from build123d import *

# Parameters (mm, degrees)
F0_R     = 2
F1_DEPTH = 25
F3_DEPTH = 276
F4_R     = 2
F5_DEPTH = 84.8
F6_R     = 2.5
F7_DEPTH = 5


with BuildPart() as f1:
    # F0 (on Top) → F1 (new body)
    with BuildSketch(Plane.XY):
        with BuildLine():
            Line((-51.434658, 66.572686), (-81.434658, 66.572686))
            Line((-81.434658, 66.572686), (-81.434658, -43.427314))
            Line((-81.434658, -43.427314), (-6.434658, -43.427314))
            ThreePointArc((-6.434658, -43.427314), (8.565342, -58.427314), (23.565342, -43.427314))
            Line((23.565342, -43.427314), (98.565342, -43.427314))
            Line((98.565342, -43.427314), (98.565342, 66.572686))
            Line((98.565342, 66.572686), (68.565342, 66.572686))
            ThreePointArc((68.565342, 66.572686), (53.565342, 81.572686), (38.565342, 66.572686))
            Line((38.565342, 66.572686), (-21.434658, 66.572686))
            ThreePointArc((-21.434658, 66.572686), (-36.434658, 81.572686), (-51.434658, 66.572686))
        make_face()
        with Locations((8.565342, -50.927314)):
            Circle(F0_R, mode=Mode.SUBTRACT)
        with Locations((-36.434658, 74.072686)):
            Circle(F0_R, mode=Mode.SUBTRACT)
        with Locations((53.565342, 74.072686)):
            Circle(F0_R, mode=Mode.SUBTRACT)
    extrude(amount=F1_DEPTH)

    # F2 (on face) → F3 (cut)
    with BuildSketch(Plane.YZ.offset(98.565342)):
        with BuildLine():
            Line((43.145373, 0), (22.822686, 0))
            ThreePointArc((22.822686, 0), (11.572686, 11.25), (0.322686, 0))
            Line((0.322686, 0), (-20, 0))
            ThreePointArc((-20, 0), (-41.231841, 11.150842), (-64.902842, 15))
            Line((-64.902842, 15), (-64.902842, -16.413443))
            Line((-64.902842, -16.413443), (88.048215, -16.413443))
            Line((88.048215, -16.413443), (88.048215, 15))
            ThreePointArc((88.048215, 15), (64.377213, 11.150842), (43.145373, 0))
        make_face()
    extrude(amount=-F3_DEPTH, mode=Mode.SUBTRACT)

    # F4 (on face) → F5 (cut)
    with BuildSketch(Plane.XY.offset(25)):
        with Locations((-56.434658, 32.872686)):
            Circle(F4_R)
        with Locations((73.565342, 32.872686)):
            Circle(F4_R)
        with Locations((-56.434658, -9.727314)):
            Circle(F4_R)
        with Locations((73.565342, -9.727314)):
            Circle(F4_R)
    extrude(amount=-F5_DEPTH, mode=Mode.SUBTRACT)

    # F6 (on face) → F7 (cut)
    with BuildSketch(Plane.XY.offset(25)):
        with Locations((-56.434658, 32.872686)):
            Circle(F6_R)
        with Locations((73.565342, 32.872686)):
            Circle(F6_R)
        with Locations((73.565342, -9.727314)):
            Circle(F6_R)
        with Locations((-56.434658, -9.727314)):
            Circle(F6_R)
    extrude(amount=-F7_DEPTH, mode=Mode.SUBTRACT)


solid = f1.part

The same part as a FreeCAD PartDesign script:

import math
import FreeCAD as App
import Part
import Sketcher
from FreeCAD import Vector
Q = App.Units.Quantity

doc = App.newDocument("Part")
params = doc.addObject("Spreadsheet::Sheet", "Params")
for row, (alias, value) in enumerate([
    ("sketch1_diameter", "4 mm"),
    ("sketch1_radius", "15 mm"),
    ("sketch1_width", "30 mm"),
    ("sketch1_width2", "75 mm"),
    ("sketch1_height", "110 mm"),
    ("pad1_length", "25 mm"),
    ("sketch2_radius", "11.25 mm"),
    ("pocket1_length", "276 mm"),
    ("sketch3_diameter", "4 mm"),
    ("pocket2_length", "84.8 mm"),
    ("sketch4_diameter", "5 mm"),
    ("pocket3_length", "5 mm"),
], start=1):
    params.set(f"A{row}", alias)
    params.set(f"B{row}", "=" + value)
    params.setAlias(f"B{row}", alias)

body = doc.addObject("PartDesign::Body", "Body")

# Sketch on XY plane
sketch1 = doc.addObject("Sketcher::SketchObject", "Sketch")
body.addObject(sketch1)
sketch1.AttachmentSupport = (doc.XY_Plane, [""])
sketch1.MapMode = "FlatFace"
sketch1.addGeometry([
    Part.LineSegment(Vector(-51.4, 66.6, 0), Vector(-81.4, 66.6, 0)),  # 0
    Part.LineSegment(Vector(-81.4, 66.6, 0), Vector(-81.4, -43.4, 0)),  # 1
    Part.LineSegment(Vector(-81.4, -43.4, 0), Vector(-6.4, -43.4, 0)),  # 2
    Part.ArcOfCircle(Part.Circle(Vector(8.6, -43.4, 0), Vector(0, 0, 1), 15), math.radians(180), math.radians(360)),  # 3
    Part.LineSegment(Vector(23.6, -43.4, 0), Vector(98.6, -43.4, 0)),  # 4
    Part.LineSegment(Vector(98.6, -43.4, 0), Vector(98.6, 66.6, 0)),  # 5
    Part.LineSegment(Vector(98.6, 66.6, 0), Vector(68.6, 66.6, 0)),  # 6
    Part.ArcOfCircle(Part.Circle(Vector(53.6, 66.6, 0), Vector(0, 0, 1), 15), math.radians(0), math.radians(180)),  # 7
    Part.LineSegment(Vector(38.6, 66.6, 0), Vector(-21.4, 66.6, 0)),  # 8
    Part.ArcOfCircle(Part.Circle(Vector(-36.4, 66.6, 0), Vector(0, 0, 1), 15), math.radians(0), math.radians(180)),  # 9
    Part.Circle(Vector(8.6, -50.9, 0), Vector(0, 0, 1), 2),  # 10
    Part.Circle(Vector(-36.4, 74.1, 0), Vector(0, 0, 1), 2),  # 11
    Part.Circle(Vector(53.6, 74.1, 0), Vector(0, 0, 1), 2),  # 12
], False)
sketch1.addConstraint([
    Sketcher.Constraint("Coincident", 0, 2, 1, 1),
    Sketcher.Constraint("Coincident", 1, 2, 2, 1),
    Sketcher.Constraint("Coincident", 2, 2, 3, 1),
    Sketcher.Constraint("Coincident", 3, 2, 4, 1),
    Sketcher.Constraint("Coincident", 4, 2, 5, 1),
    Sketcher.Constraint("Coincident", 5, 2, 6, 1),
    Sketcher.Constraint("Coincident", 6, 2, 7, 1),
    Sketcher.Constraint("Coincident", 7, 2, 8, 1),
    Sketcher.Constraint("Coincident", 8, 2, 9, 1),
    Sketcher.Constraint("Coincident", 9, 2, 0, 1),
    Sketcher.Constraint("Horizontal", 0),
    Sketcher.Constraint("Vertical", 1),
    Sketcher.Constraint("Horizontal", 2),
    Sketcher.Constraint("Horizontal", 4),
    Sketcher.Constraint("Vertical", 5),
    Sketcher.Constraint("Horizontal", 6),
    Sketcher.Constraint("Horizontal", 8),
    Sketcher.Constraint("Equal", 3, 7),
    Sketcher.Constraint("Equal", 7, 9),
    Sketcher.Constraint("Equal", 10, 11),
    Sketcher.Constraint("Equal", 11, 12),
    Sketcher.Constraint("Horizontal", 7, 3, 9, 3),
    Sketcher.Constraint("Horizontal", 11, 3, 12, 3),
    Sketcher.Constraint("Horizontal", 9, 3, 0, 2),
    Sketcher.Constraint("Horizontal", 3, 3, 1, 2),
    Sketcher.Constraint("Horizontal", 2, 2, 3, 2),
    Sketcher.Constraint("Horizontal", 0, 2, 5, 2),
    Sketcher.Constraint("Horizontal", 6, 2, 7, 2),
    Sketcher.Constraint("Vertical", 3, 3, 10, 3),
    Sketcher.Constraint("Vertical", 9, 3, 11, 3),
    Sketcher.Constraint("Vertical", 7, 3, 12, 3),
    Sketcher.Constraint("Equal", 2, 4),
    Sketcher.Constraint("Equal", 0, 6),
    Sketcher.Constraint("Diameter", 10, Q("4 mm")),
    Sketcher.Constraint("Radius", 3, Q("15 mm")),
    Sketcher.Constraint("DistanceX", 0, 2, 0, 1, Q("30 mm")),
    Sketcher.Constraint("DistanceX", 2, 1, 2, 2, Q("75 mm")),
    Sketcher.Constraint("DistanceY", 1, 2, 1, 1, Q("110 mm")),
    Sketcher.Constraint("DistanceY", 10, 3, 11, 3, Q("125 mm")),
    Sketcher.Constraint("DistanceY", 10, 3, 3, 3, Q("7.5 mm")),
    Sketcher.Constraint("DistanceX", -1, 1, 3, 3, Q("8.565342 mm")),
    Sketcher.Constraint("DistanceY", 3, 3, -1, 1, Q("43.427314 mm")),
])
sketch1.setExpression("Constraints[33]", "Params.sketch1_diameter")
sketch1.setExpression("Constraints[34]", "Params.sketch1_radius")
sketch1.setExpression("Constraints[35]", "Params.sketch1_width")
sketch1.setExpression("Constraints[36]", "Params.sketch1_width2")
sketch1.setExpression("Constraints[37]", "Params.sketch1_height")
pad1 = doc.addObject("PartDesign::Pad", "Pad")
body.addObject(pad1)
pad1.Profile = sketch1
pad1.setExpression("Length", "Params.pad1_length")

# Sketch on YZ plane
sketch2 = doc.addObject("Sketcher::SketchObject", "Sketch001")
body.addObject(sketch2)
sketch2.AttachmentSupport = (doc.YZ_Plane, [""])
sketch2.MapMode = "FlatFace"
sketch2.AttachmentOffset = App.Placement(Vector(0, 0, 98.565342), App.Rotation())
sketch2.addGeometry([
    Part.LineSegment(Vector(43, 0, 0), Vector(23, 0, 0)),  # 0
    Part.ArcOfCircle(Part.Circle(Vector(12, 0, 0), Vector(0, 0, 1), 11), math.radians(0), math.radians(180)),  # 1
    Part.LineSegment(Vector(0, 0, 0), Vector(-20, 0, 0)),  # 2
    Part.ArcOfCircle(Part.Circle(Vector(-65, -60, 0), Vector(0, 0, 1), 75), math.radians(53), math.radians(90)),  # 3
    Part.LineSegment(Vector(-65, 15, 0), Vector(-65, -16, 0)),  # 4
    Part.LineSegment(Vector(-65, -16, 0), Vector(88, -16, 0)),  # 5
    Part.LineSegment(Vector(88, -16, 0), Vector(88, 15, 0)),  # 6
    Part.ArcOfCircle(Part.Circle(Vector(88, -60, 0), Vector(0, 0, 1), 75), math.radians(90), math.radians(127)),  # 7
], False)
sketch2.addConstraint([
    Sketcher.Constraint("Coincident", 0, 2, 1, 1),
    Sketcher.Constraint("Coincident", 1, 2, 2, 1),
    Sketcher.Constraint("Coincident", 2, 2, 3, 1),
    Sketcher.Constraint("Coincident", 3, 2, 4, 1),
    Sketcher.Constraint("Coincident", 4, 2, 5, 1),
    Sketcher.Constraint("Coincident", 5, 2, 6, 1),
    Sketcher.Constraint("Coincident", 6, 2, 7, 1),
    Sketcher.Constraint("Coincident", 7, 2, 0, 1),
    Sketcher.Constraint("Horizontal", 0),
    Sketcher.Constraint("Horizontal", 2),
    Sketcher.Constraint("Vertical", 4),
    Sketcher.Constraint("Horizontal", 5),
    Sketcher.Constraint("Vertical", 6),
    Sketcher.Constraint("PointOnObject", 1, 3, -1),
    Sketcher.Constraint("PointOnObject", 0, 2, -1),
    Sketcher.Constraint("PointOnObject", 1, 2, -1),
    Sketcher.Constraint("Horizontal", 3, 2, 6, 2),
    Sketcher.Constraint("Equal", 0, 2),
    Sketcher.Constraint("Radius", 1, Q("11.25 mm")),
    Sketcher.Constraint("DistanceX", 2, 2, -1, 1, Q("20 mm")),
    Sketcher.Constraint("DistanceY", -1, 1, 3, 2, Q("15 mm")),
    Sketcher.Constraint("Radius", 7, Q("74.70883 mm")),
    Sketcher.Constraint("Radius", 3, Q("74.708835 mm")),
    Sketcher.Constraint("DistanceX", 0, 2, 0, 1, Q("20.322687 mm")),
    Sketcher.Constraint("DistanceX", 5, 1, 5, 2, Q("152.951057 mm")),
    Sketcher.Constraint("DistanceY", 4, 2, 4, 1, Q("31.413443 mm")),
    Sketcher.Constraint("DistanceX", 3, 2, 1, 2, Q("65.225528 mm")),
])
sketch2.setExpression("Constraints[18]", "Params.sketch2_radius")
pocket1 = doc.addObject("PartDesign::Pocket", "Pocket")
body.addObject(pocket1)
pocket1.Profile = sketch2
pocket1.setExpression("Length", "Params.pocket1_length")

# Sketch on XY plane
sketch3 = doc.addObject("Sketcher::SketchObject", "Sketch002")
body.addObject(sketch3)
sketch3.AttachmentSupport = (doc.XY_Plane, [""])
sketch3.MapMode = "FlatFace"
sketch3.AttachmentOffset = App.Placement(Vector(0, 0, 25), App.Rotation())
sketch3.addGeometry([
    Part.Circle(Vector(-56.4, 32.9, 0), Vector(0, 0, 1), 2),
    Part.Circle(Vector(73.6, 32.9, 0), Vector(0, 0, 1), 2),
    Part.Circle(Vector(-56.4, -9.7, 0), Vector(0, 0, 1), 2),
    Part.Circle(Vector(73.6, -9.7, 0), Vector(0, 0, 1), 2),
], False)
sketch3.addConstraint([
    Sketcher.Constraint("Equal", 0, 1),
    Sketcher.Constraint("Equal", 1, 2),
    Sketcher.Constraint("Equal", 2, 3),
    Sketcher.Constraint("Horizontal", 0, 3, 1, 3),
    Sketcher.Constraint("Horizontal", 2, 3, 3, 3),
    Sketcher.Constraint("Vertical", 0, 3, 2, 3),
    Sketcher.Constraint("Vertical", 1, 3, 3, 3),
    Sketcher.Constraint("Diameter", 0, Q("4 mm")),
    Sketcher.Constraint("DistanceX", 0, 3, 1, 3, Q("130 mm")),
    Sketcher.Constraint("DistanceY", 2, 3, 0, 3, Q("42.6 mm")),
    Sketcher.Constraint("DistanceX", -1, 1, 1, 3, Q("73.565342 mm")),
    Sketcher.Constraint("DistanceY", -1, 1, 0, 3, Q("32.872686 mm")),
])
sketch3.setExpression("Constraints[7]", "Params.sketch3_diameter")
pocket2 = doc.addObject("PartDesign::Pocket", "Pocket001")
body.addObject(pocket2)
pocket2.Profile = sketch3
pocket2.setExpression("Length", "Params.pocket2_length")

# Sketch on XY plane
sketch4 = doc.addObject("Sketcher::SketchObject", "Sketch003")
body.addObject(sketch4)
sketch4.AttachmentSupport = (doc.XY_Plane, [""])
sketch4.MapMode = "FlatFace"
sketch4.AttachmentOffset = App.Placement(Vector(0, 0, 25), App.Rotation())
sketch4.addGeometry([
    Part.Circle(Vector(-56.4, 32.9, 0), Vector(0, 0, 1), 2.5),
    Part.Circle(Vector(73.6, 32.9, 0), Vector(0, 0, 1), 2.5),
    Part.Circle(Vector(73.6, -9.7, 0), Vector(0, 0, 1), 2.5),
    Part.Circle(Vector(-56.4, -9.7, 0), Vector(0, 0, 1), 2.5),
], False)
sketch4.addConstraint([
    Sketcher.Constraint("Equal", 0, 1),
    Sketcher.Constraint("Equal", 1, 2),
    Sketcher.Constraint("Equal", 2, 3),
    Sketcher.Constraint("Horizontal", 0, 3, 1, 3),
    Sketcher.Constraint("Horizontal", 2, 3, 3, 3),
    Sketcher.Constraint("Vertical", 1, 3, 2, 3),
    Sketcher.Constraint("Vertical", 0, 3, 3, 3),
    Sketcher.Constraint("Diameter", 0, Q("5 mm")),
    Sketcher.Constraint("DistanceX", 0, 3, 1, 3, Q("130 mm")),
    Sketcher.Constraint("DistanceY", 2, 3, 1, 3, Q("42.6 mm")),
    Sketcher.Constraint("DistanceX", -1, 1, 1, 3, Q("73.565342 mm")),
    Sketcher.Constraint("DistanceY", -1, 1, 0, 3, Q("32.872686 mm")),
])
sketch4.setExpression("Constraints[7]", "Params.sketch4_diameter")
pocket3 = doc.addObject("PartDesign::Pocket", "Pocket002")
body.addObject(pocket3)
pocket3.Profile = sketch4
pocket3.setExpression("Length", "Params.pocket3_length")

doc.recompute()
